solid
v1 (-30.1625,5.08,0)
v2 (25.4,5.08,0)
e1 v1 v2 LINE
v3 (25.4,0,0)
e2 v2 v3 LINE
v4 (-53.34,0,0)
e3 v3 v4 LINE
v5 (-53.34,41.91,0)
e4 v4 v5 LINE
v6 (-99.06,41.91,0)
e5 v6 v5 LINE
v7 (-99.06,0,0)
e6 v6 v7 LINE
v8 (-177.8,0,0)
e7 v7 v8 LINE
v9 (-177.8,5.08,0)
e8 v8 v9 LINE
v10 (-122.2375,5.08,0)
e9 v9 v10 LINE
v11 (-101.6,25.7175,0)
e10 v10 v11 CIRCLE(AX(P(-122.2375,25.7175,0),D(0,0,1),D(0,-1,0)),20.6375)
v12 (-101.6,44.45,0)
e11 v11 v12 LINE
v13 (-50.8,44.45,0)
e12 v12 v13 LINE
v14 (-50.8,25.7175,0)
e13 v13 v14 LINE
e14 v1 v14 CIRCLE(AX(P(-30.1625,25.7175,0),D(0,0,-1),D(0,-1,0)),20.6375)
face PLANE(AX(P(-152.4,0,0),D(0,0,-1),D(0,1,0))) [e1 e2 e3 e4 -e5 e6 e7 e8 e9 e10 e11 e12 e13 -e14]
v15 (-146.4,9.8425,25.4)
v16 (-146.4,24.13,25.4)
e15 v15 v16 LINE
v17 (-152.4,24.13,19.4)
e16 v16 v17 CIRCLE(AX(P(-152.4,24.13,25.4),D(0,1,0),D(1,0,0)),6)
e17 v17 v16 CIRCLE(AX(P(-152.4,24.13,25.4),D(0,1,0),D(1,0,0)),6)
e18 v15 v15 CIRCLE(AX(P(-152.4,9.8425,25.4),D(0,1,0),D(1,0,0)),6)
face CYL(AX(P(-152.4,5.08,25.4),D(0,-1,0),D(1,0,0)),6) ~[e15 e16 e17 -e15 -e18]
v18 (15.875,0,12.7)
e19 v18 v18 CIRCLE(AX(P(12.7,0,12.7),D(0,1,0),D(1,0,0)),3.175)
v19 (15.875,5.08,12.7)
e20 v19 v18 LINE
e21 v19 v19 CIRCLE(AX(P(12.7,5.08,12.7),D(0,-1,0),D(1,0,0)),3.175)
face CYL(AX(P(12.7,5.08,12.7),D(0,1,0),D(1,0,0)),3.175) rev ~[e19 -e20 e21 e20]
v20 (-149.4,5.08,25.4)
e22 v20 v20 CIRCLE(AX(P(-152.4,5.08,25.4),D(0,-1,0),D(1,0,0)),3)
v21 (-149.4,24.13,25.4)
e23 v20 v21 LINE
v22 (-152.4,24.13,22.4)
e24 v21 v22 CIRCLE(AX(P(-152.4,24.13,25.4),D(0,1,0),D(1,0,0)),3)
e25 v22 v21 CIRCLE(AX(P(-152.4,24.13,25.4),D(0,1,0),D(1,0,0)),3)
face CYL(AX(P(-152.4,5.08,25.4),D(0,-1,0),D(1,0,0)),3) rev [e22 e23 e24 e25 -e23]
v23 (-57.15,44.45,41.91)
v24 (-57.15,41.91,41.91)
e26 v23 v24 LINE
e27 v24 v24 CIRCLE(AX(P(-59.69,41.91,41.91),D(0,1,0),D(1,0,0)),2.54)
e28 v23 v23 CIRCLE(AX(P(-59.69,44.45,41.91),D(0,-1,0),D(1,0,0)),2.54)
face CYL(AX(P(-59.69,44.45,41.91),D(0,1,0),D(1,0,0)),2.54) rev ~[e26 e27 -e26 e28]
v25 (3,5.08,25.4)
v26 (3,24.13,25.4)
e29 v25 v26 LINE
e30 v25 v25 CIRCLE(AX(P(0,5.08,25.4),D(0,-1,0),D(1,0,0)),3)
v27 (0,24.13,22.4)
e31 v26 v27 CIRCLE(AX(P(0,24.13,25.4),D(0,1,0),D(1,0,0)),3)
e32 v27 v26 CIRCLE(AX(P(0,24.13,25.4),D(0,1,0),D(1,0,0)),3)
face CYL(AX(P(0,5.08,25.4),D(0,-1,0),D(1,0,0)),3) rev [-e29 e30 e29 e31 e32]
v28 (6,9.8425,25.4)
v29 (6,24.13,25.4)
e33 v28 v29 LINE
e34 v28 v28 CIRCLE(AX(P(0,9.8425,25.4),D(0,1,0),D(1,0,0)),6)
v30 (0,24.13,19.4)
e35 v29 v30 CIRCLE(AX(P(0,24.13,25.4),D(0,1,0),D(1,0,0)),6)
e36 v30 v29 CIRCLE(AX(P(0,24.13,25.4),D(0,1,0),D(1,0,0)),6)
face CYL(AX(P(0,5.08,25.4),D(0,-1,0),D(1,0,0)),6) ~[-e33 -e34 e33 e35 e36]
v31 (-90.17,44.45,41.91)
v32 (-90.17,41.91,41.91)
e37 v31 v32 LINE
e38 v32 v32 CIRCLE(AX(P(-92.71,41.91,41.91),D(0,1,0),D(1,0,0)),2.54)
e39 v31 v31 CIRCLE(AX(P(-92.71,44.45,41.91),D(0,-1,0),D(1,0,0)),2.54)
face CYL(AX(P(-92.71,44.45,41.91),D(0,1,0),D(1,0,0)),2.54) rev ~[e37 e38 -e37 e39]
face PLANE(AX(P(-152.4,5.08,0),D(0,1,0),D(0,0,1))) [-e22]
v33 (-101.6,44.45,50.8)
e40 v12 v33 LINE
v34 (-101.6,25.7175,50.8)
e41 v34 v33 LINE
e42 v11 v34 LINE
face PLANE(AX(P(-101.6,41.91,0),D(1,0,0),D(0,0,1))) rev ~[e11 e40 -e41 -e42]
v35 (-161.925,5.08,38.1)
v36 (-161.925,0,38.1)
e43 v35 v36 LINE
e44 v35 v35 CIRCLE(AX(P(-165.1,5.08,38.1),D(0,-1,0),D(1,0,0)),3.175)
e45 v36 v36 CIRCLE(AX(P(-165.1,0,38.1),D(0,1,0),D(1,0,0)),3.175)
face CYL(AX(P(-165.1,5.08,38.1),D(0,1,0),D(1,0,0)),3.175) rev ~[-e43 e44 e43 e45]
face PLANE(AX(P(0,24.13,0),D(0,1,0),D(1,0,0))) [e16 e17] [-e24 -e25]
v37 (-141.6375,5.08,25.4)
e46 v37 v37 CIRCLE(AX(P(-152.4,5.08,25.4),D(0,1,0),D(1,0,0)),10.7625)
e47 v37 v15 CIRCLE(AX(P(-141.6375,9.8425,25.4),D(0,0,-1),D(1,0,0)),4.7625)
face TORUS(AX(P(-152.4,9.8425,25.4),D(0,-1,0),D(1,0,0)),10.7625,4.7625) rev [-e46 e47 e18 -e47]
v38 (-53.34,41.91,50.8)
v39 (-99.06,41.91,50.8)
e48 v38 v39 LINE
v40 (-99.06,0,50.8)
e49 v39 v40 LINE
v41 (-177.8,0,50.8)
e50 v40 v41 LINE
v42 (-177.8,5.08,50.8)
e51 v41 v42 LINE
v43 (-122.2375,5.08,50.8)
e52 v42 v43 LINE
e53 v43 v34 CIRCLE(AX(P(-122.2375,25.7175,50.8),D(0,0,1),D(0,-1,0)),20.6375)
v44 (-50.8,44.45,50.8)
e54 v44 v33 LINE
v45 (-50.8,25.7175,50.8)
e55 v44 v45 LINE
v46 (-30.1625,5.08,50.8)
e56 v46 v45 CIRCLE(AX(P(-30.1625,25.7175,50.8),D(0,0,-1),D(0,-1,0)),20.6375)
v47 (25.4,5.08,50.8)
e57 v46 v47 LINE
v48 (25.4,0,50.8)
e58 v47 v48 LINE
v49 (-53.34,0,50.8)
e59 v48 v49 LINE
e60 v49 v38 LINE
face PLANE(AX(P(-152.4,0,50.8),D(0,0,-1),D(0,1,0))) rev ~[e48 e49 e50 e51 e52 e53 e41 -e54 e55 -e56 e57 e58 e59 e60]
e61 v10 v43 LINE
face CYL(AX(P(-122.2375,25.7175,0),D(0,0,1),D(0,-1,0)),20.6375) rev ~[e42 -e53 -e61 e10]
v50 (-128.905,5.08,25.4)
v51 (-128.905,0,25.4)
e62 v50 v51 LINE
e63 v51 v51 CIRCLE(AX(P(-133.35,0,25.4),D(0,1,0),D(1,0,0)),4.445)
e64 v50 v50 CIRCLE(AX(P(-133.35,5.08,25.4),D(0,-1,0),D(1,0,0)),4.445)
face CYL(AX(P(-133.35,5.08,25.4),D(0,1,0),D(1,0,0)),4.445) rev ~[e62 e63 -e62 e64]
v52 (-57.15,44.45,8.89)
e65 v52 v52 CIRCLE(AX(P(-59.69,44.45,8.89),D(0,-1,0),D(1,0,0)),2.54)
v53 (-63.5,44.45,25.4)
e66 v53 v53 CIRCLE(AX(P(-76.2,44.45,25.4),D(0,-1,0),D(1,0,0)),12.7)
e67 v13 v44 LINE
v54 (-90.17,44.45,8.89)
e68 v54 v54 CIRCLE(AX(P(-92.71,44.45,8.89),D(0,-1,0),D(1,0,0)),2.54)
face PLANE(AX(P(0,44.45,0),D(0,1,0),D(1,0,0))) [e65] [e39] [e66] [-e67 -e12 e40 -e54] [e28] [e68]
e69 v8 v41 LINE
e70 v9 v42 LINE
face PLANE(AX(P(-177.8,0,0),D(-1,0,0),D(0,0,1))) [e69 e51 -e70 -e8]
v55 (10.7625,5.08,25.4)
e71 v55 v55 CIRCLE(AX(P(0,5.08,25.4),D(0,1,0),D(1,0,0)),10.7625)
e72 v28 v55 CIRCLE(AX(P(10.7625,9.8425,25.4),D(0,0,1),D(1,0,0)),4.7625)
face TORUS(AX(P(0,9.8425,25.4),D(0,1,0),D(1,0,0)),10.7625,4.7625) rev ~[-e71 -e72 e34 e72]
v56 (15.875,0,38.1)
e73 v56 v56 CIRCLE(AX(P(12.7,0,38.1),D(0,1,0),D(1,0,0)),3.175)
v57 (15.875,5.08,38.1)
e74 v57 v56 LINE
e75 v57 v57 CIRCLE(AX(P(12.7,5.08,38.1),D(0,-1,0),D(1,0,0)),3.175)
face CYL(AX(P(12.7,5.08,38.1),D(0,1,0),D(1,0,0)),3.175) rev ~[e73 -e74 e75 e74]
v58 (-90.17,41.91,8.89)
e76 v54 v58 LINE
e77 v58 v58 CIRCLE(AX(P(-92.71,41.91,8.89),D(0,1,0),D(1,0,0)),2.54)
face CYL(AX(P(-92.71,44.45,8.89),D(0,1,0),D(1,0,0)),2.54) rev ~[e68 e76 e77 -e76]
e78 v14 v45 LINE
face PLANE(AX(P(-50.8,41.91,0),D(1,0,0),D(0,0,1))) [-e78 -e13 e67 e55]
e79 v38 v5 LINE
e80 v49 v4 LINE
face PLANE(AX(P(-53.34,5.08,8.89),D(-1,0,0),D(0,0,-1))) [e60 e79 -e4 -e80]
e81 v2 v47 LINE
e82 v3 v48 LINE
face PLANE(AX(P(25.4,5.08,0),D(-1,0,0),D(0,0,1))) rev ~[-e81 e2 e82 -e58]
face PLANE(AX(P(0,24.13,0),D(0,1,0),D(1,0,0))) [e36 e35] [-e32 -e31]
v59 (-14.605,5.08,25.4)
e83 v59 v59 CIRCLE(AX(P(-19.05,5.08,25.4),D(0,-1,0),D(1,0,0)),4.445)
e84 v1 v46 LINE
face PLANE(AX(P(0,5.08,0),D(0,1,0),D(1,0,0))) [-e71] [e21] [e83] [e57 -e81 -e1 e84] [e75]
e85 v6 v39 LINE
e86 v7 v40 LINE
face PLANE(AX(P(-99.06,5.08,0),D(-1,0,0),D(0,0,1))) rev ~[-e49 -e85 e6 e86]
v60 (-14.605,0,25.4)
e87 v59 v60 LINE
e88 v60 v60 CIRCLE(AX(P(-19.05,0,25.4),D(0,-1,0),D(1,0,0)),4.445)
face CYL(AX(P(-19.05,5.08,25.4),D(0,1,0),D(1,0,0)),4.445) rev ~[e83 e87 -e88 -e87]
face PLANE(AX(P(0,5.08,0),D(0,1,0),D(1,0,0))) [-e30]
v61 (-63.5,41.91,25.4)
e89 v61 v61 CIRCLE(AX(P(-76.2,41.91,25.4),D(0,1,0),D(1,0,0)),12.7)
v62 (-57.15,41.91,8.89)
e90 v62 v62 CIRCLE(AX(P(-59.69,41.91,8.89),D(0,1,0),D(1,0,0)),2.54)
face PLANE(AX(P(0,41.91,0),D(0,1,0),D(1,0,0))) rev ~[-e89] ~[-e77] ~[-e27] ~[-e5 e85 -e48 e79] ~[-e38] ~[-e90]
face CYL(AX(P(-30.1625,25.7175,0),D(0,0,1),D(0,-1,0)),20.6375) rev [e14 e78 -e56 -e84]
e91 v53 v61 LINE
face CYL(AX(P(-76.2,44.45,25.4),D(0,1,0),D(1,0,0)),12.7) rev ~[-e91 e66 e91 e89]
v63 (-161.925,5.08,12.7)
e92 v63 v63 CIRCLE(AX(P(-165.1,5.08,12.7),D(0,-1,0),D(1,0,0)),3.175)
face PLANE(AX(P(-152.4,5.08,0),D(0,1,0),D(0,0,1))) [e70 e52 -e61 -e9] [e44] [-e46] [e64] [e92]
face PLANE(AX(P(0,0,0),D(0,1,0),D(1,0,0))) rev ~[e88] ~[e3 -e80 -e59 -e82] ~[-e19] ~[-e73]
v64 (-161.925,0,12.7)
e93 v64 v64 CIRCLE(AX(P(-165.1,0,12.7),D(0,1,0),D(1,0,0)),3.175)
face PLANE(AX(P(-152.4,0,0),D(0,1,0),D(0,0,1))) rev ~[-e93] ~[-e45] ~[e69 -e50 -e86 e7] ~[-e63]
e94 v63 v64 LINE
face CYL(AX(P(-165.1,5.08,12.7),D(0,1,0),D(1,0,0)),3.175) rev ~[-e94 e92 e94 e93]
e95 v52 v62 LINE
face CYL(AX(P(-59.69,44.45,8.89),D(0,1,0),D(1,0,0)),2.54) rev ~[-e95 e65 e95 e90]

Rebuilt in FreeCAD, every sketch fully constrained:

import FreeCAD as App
import Part
import Sketcher

V = App.Vector
Q = App.Units.Quantity


def edges_at(feature, points):
    """Names of the edges that pass closest to the given points."""
    edges = feature.Shape.Edges
    near = lambda p: min(range(len(edges)), key=lambda i: edges[i].distToShape(Part.Vertex(*p))[0])
    return sorted({f"Edge{near(p) + 1}" for p in points})


def add_polygon(sketch, points):
    """Adds a closed chain of lines whose ends are joined by coincident constraints."""
    first, n = sketch.GeometryCount, len(points)
    for a, b in zip(points, points[1:] + points[:1]):
        sketch.addGeometry(Part.LineSegment(App.Vector(*a, 0), App.Vector(*b, 0)), False)
    for i in range(n):
        sketch.addConstraint(Sketcher.Constraint("Coincident", first + i, 2, first + (i + 1) % n, 1))

doc = App.newDocument("Part")
params = doc.addObject("Spreadsheet::Sheet", "Params")
for row, (alias, value) in enumerate([
    ("sketch1_width", "6 in"),
    ("sketch1_height", "2 in"),
    ("pad1_length", "0.2 in"),
    ("sketch2_width", "0.1 in"),
    ("sketch2_height", "2 in"),
    ("pad2_length", "1.45 in"),
    ("sketch3_width", "0.1 in"),
    ("sketch3_height", "2 in"),
    ("pad3_length", "1.45 in"),
    ("sketch4_width", "2 in"),
    ("pad4_length", "0.1 in"),
    ("sketch5_height", "2 in"),
    ("sketch5_width", "1.8 in"),
    ("pocket1_length", "0.5375 in"),
    ("sketch6_diameter", "1 in"),
    ("sketch6_diameter2", "0.2 in"),
    ("pocket2_length", "0.5375 in"),
    ("sketch7_width", "1 in"),
    ("sketch7_height", "2 in"),
    ("pad5_length", "0.2 in"),
    ("sketch8_height", "2 in"),
    ("sketch8_width", "0.2 in"),
    ("pad6_length", "1 in"),
    ("pad7_length", "0.75 in"),
    ("pad8_length", "0.75 in"),
    ("fillet_radius", "0.1875 in"),
    ("fillet2_radius", "0.8125 in"),
    ("sketch11_diameter", "0.25 in"),
    ("pocket3_length", "0.75 in"),
    ("sketch12_diameter", "0.25 in"),
    ("pocket4_length", "0.75 in"),
    ("sketch13_diameter", "0.35 in"),
    ("pocket5_length", "0.75 in"),
    ("sketch14_diameter", "0.35 in"),
    ("pocket6_length", "0.75 in"),
], start=1):
    params.set(f"A{row}", alias)
    params.set(f"B{row}", "=" + value)
    params.setAlias(f"B{row}", alias)

body = doc.addObject("PartDesign::Body", "Body")

# Sketch on XZ plane
sketch1 = doc.addObject("Sketcher::SketchObject", "Sketch")
body.addObject(sketch1)
sketch1.AttachmentSupport = (doc.XZ_Plane, [""])
sketch1.MapMode = "FlatFace"
add_polygon(sketch1, [(0, 51), (0, 0), (-152, 0), (-152, 51)])  # lines 0-3
sketch1.addConstraint(Sketcher.Constraint("Vertical", 0))
sketch1.addConstraint(Sketcher.Constraint("Horizontal", 1))
sketch1.addConstraint(Sketcher.Constraint("Vertical", 2))
sketch1.addConstraint(Sketcher.Constraint("Horizontal", 3))
sketch1.addConstraint(Sketcher.Constraint("Coincident", 0, 2, -1, 1))
sketch1.addConstraint(Sketcher.Constraint("DistanceX", 1, 2, 1, 1, Q("6 in")))
sketch1.addConstraint(Sketcher.Constraint("DistanceY", 0, 2, 0, 1, Q("2 in")))
sketch1.setExpression("Constraints[9]", "Params.sketch1_width")
sketch1.setExpression("Constraints[10]", "Params.sketch1_height")
pad1 = doc.addObject("PartDesign::Pad", "Pad")
body.addObject(pad1)
pad1.Profile = sketch1
pad1.setExpression("Length", "Params.pad1_length")
pad1.Reversed = True

# Sketch on XZ plane
sketch2 = doc.addObject("Sketcher::SketchObject", "Sketch001")
body.addObject(sketch2)
sketch2.AttachmentSupport = (doc.XZ_Plane, [""])
sketch2.MapMode = "FlatFace"
sketch2.AttachmentOffset = App.Placement(V(0, 0, -0.2 * 25.4), App.Rotation())
add_polygon(sketch2, [(-50.8, 50.8), (-50.8, 0), (-53.3, 0), (-53.3, 50.8)])  # lines 0-3
sketch2.addConstraint(Sketcher.Constraint("Vertical", 0))
sketch2.addConstraint(Sketcher.Constraint("Horizontal", 1))
sketch2.addConstraint(Sketcher.Constraint("Vertical", 2))
sketch2.addConstraint(Sketcher.Constraint("Horizontal", 3))
sketch2.addConstraint(Sketcher.Constraint("PointOnObject", 0, 2, -1))
sketch2.addConstraint(Sketcher.Constraint("DistanceX", 1, 2, 1, 1, Q("0.1 in")))
sketch2.addConstraint(Sketcher.Constraint("DistanceY", 0, 2, 0, 1, Q("2 in")))
sketch2.addConstraint(Sketcher.Constraint("DistanceX", 0, 2, -1, 1, Q("2 in")))
sketch2.setExpression("Constraints[9]", "Params.sketch2_width")
sketch2.setExpression("Constraints[10]", "Params.sketch2_height")
pad2 = doc.addObject("PartDesign::Pad", "Pad001")
body.addObject(pad2)
pad2.Profile = sketch2
pad2.setExpression("Length", "Params.pad2_length")
pad2.Reversed = True

# Sketch on XZ plane
sketch3 = doc.addObject("Sketcher::SketchObject", "Sketch002")
body.addObject(sketch3)
sketch3.AttachmentSupport = (doc.XZ_Plane, [""])
sketch3.MapMode = "FlatFace"
sketch3.AttachmentOffset = App.Placement(V(0, 0, -0.2 * 25.4), App.Rotation())
add_polygon(sketch3, [(-99.1, 50.8), (-99.1, 0), (-101.6, 0), (-101.6, 50.8)])  # lines 0-3
sketch3.addConstraint(Sketcher.Constraint("Vertical", 0))
sketch3.addConstraint(Sketcher.Constraint("Horizontal", 1))
sketch3.addConstraint(Sketcher.Constraint("Vertical", 2))
sketch3.addConstraint(Sketcher.Constraint("Horizontal", 3))
sketch3.addConstraint(Sketcher.Constraint("PointOnObject", 0, 2, -1))
sketch3.addConstraint(Sketcher.Constraint("DistanceX", 1, 2, 1, 1, Q("0.1 in")))
sketch3.addConstraint(Sketcher.Constraint("DistanceY", 0, 2, 0, 1, Q("2 in")))
sketch3.addConstraint(Sketcher.Constraint("DistanceX", 1, 2, -1, 1, Q("4 in")))
sketch3.setExpression("Constraints[9]", "Params.sketch3_width")
sketch3.setExpression("Constraints[10]", "Params.sketch3_height")
pad3 = doc.addObject("PartDesign::Pad", "Pad002")
body.addObject(pad3)
pad3.Profile = sketch3
pad3.setExpression("Length", "Params.pad3_length")
pad3.Reversed = True

# Sketch on XZ plane
sketch4 = doc.addObject("Sketcher::SketchObject", "Sketch003")
body.addObject(sketch4)
sketch4.AttachmentSupport = (doc.XZ_Plane, [""])
sketch4.MapMode = "FlatFace"
sketch4.AttachmentOffset = App.Placement(V(0, 0, -1.65 * 25.4), App.Rotation())
add_polygon(sketch4, [(-51, 0), (-102, 0), (-102, 51), (-51, 51)])  # lines 0-3
sketch4.addConstraint(Sketcher.Constraint("Horizontal", 0))
sketch4.addConstraint(Sketcher.Constraint("Vertical", 1))
sketch4.addConstraint(Sketcher.Constraint("Horizontal", 2))
sketch4.addConstraint(Sketcher.Constraint("Vertical", 3))
sketch4.addConstraint(Sketcher.Constraint("PointOnObject", 0, 2, -1))
sketch4.addConstraint(Sketcher.Constraint("Equal", 2, 1))
sketch4.addConstraint(Sketcher.Constraint("DistanceX", 0, 2, 0, 1, Q("2 in")))
sketch4.addConstraint(Sketcher.Constraint("DistanceX", 2, 2, -1, 1, Q("2 in")))
sketch4.setExpression("Constraints[10]", "Params.sketch4_width")
pad4 = doc.addObject("PartDesign::Pad", "Pad003")
body.addObject(pad4)
pad4.Profile = sketch4
pad4.setExpression("Length", "Params.pad4_length")
pad4.Reversed = True

# Sketch on XZ plane
sketch5 = doc.addObject("Sketcher::SketchObject", "Sketch004")
body.addObject(sketch5)
sketch5.AttachmentSupport = (doc.XZ_Plane, [""])
sketch5.MapMode = "FlatFace"
sketch5.AttachmentOffset = App.Placement(V(0, 0, -0.2 * 25.4), App.Rotation())
add_polygon(sketch5, [(-53, 0), (-99, 0), (-99, 51), (-53, 51)])  # lines 0-3
sketch5.addConstraint(Sketcher.Constraint("Horizontal", 0))
sketch5.addConstraint(Sketcher.Constraint("Vertical", 1))
sketch5.addConstraint(Sketcher.Constraint("Horizontal", 2))
sketch5.addConstraint(Sketcher.Constraint("Vertical", 3))
sketch5.addConstraint(Sketcher.Constraint("PointOnObject", 0, 2, -1))
sketch5.addConstraint(Sketcher.Constraint("DistanceY", 1, 1, 1, 2, Q("2 in")))
sketch5.addConstraint(Sketcher.Constraint("DistanceX", 0, 2, 0, 1, Q("1.8 in")))
sketch5.addConstraint(Sketcher.Constraint("DistanceX", 0, 2, -1, 1, Q("3.9 in")))
sketch5.setExpression("Constraints[9]", "Params.sketch5_height")
sketch5.setExpression("Constraints[10]", "Params.sketch5_width")
pocket1 = doc.addObject("PartDesign::Pocket", "Pocket")
body.addObject(pocket1)
pocket1.Profile = sketch5
pocket1.setExpression("Length", "Params.pocket1_length")
pocket1.Reversed = True

# Sketch on XZ plane
sketch6 = doc.addObject("Sketcher::SketchObject", "Sketch005")
body.addObject(sketch6)
sketch6.AttachmentSupport = (doc.XZ_Plane, [""])
sketch6.MapMode = "FlatFace"
sketch6.AttachmentOffset = App.Placement(V(0, 0, -1.75 * 25.4), App.Rotation())
sketch6.addGeometry(Part.Circle(V(-76.2, 25.4, 0), V(0, 0, 1), 12.7), False)
sketch6.addGeometry(Part.Circle(V(-59.7, 8.9, 0), V(0, 0, 1), 2.5), False)
sketch6.addGeometry(Part.Circle(V(-59.7, 41.9, 0), V(0, 0, 1), 2.5), False)
sketch6.addGeometry(Part.Circle(V(-92.7, 41.9, 0), V(0, 0, 1), 2.5), False)
sketch6.addGeometry(Part.Circle(V(-92.7, 8.9, 0), V(0, 0, 1), 2.5), False)
sketch6.addConstraint(Sketcher.Constraint("Equal", 1, 2))
sketch6.addConstraint(Sketcher.Constraint("Equal", 2, 3))
sketch6.addConstraint(Sketcher.Constraint("Equal", 3, 4))
sketch6.addConstraint(Sketcher.Constraint("Horizontal", 2, 3, 3, 3))
sketch6.addConstraint(Sketcher.Constraint("Horizontal", 1, 3, 4, 3))
sketch6.addConstraint(Sketcher.Constraint("Vertical", 1, 3, 2, 3))
sketch6.addConstraint(Sketcher.Constraint("Vertical", 3, 3, 4, 3))
sketch6.addConstraint(Sketcher.Constraint("Diameter", 0, Q("1 in")))
sketch6.addConstraint(Sketcher.Constraint("Diameter", 1, Q("0.2 in")))
sketch6.addConstraint(Sketcher.Constraint("DistanceY", -1, 1, 0, 3, Q("1 in")))
sketch6.addConstraint(Sketcher.Constraint("DistanceX", 0, 3, 1, 3, Q("0.65 in")))
sketch6.addConstraint(Sketcher.Constraint("DistanceY", 1, 3, 0, 3, Q("0.65 in")))
sketch6.addConstraint(Sketcher.Constraint("DistanceY", 0, 3, 2, 3, Q("0.65 in")))
sketch6.addConstraint(Sketcher.Constraint("DistanceX", 3, 3, 0, 3, Q("0.65 in")))
sketch6.addConstraint(Sketcher.Constraint("DistanceX", 0, 3, -1, 1, Q("3 in")))
sketch6.setExpression("Constraints[7]", "Params.sketch6_diameter")
sketch6.setExpression("Constraints[8]", "Params.sketch6_diameter2")
pocket2 = doc.addObject("PartDesign::Pocket", "Pocket001")
body.addObject(pocket2)
pocket2.Profile = sketch6
pocket2.setExpression("Length", "Params.pocket2_length")
pocket2.Reversed = True

# Sketch on XZ plane
sketch7 = doc.addObject("Sketcher::SketchObject", "Sketch006")
body.addObject(sketch7)
sketch7.AttachmentSupport = (doc.XZ_Plane, [""])
sketch7.MapMode = "FlatFace"
sketch7.AttachmentOffset = App.Placement(V(0, 0, -0.2 * 25.4), App.Rotation())
add_polygon(sketch7, [(0, 0), (0, 51), (25, 51), (25, 0)])  # lines 0-3
sketch7.addConstraint(Sketcher.Constraint("Vertical", 0))
sketch7.addConstraint(Sketcher.Constraint("Horizontal", 1))
sketch7.addConstraint(Sketcher.Constraint("Vertical", 2))
sketch7.addConstraint(Sketcher.Constraint("Horizontal", 3))
sketch7.addConstraint(Sketcher.Constraint("Coincident", 3, 2, -1, 1))
sketch7.addConstraint(Sketcher.Constraint("DistanceX", 1, 1, 1, 2, Q("1 in")))
sketch7.addConstraint(Sketcher.Constraint("DistanceY", 0, 1, 0, 2, Q("2 in")))
sketch7.setExpression("Constraints[9]", "Params.sketch7_width")
sketch7.setExpression("Constraints[10]", "Params.sketch7_height")
pad5 = doc.addObject("PartDesign::Pad", "Pad004")
body.addObject(pad5)
pad5.Profile = sketch7
pad5.setExpression("Length", "Params.pad5_length")

# Sketch on YZ plane
sketch8 = doc.addObject("Sketcher::SketchObject", "Sketch007")
body.addObject(sketch8)
sketch8.AttachmentSupport = (doc.YZ_Plane, [""])
sketch8.MapMode = "FlatFace"
sketch8.AttachmentOffset = App.Placement(V(0, 0, -6 * 25.4), App.Rotation())
add_polygon(sketch8, [(5, 0), (0, 0), (0, 51), (5, 51)])  # lines 0-3
sketch8.addConstraint(Sketcher.Constraint("Horizontal", 0))
sketch8.addConstraint(Sketcher.Constraint("Vertical", 1))
sketch8.addConstraint(Sketcher.Constraint("Horizontal", 2))
sketch8.addConstraint(Sketcher.Constraint("Vertical", 3))
sketch8.addConstraint(Sketcher.Constraint("Coincident", 0, 2, -1, 1))
sketch8.addConstraint(Sketcher.Constraint("DistanceY", 1, 1, 1, 2, Q("2 in")))
sketch8.addConstraint(Sketcher.Constraint("DistanceX", 0, 2, 0, 1, Q("0.2 in")))
sketch8.setExpression("Constraints[9]", "Params.sketch8_height")
sketch8.setExpression("Constraints[10]", "Params.sketch8_width")
pad6 = doc.addObject("PartDesign::Pad", "Pad005")
body.addObject(pad6)
pad6.Profile = sketch8
pad6.setExpression("Length", "Params.pad6_length")
pad6.Reversed = True

# Sketch on XZ plane
sketch9 = doc.addObject("Sketcher::SketchObject", "Sketch008")
body.addObject(sketch9)
sketch9.AttachmentSupport = (doc.XZ_Plane, [""])
sketch9.MapMode = "FlatFace"
sketch9.AttachmentOffset = App.Placement(V(0, 0, -0.2 * 25.4), App.Rotation())
sketch9.addGeometry(Part.Circle(V(-152.4, 25.4, 0), V(0, 0, 1), 6), False)
sketch9.addGeometry(Part.Circle(V(-152.4, 25.4, 0), V(0, 0, 1), 3), False)
sketch9.addConstraint(Sketcher.Constraint("Coincident", 1, 3, 0, 3))
sketch9.addConstraint(Sketcher.Constraint("Diameter", 0, Q("12 mm")))
sketch9.addConstraint(Sketcher.Constraint("Diameter", 1, Q("6 mm")))
sketch9.addConstraint(Sketcher.Constraint("DistanceX", 0, 3, -1, 1, Q("6 in")))
sketch9.addConstraint(Sketcher.Constraint("DistanceY", -1, 1, 0, 3, Q("1 in")))
pad7 = doc.addObject("PartDesign::Pad", "Pad006")
body.addObject(pad7)
pad7.Profile = sketch9
pad7.setExpression("Length", "Params.pad7_length")
pad7.Reversed = True

# Sketch on XZ plane
sketch10 = doc.addObject("Sketcher::SketchObject", "Sketch009")
body.addObject(sketch10)
sketch10.AttachmentSupport = (doc.XZ_Plane, [""])
sketch10.MapMode = "FlatFace"
sketch10.AttachmentOffset = App.Placement(V(0, 0, -0.2 * 25.4), App.Rotation())
sketch10.addGeometry(Part.Circle(V(0, 25.4, 0), V(0, 0, 1), 6), False)
sketch10.addGeometry(Part.Circle(V(0, 25.4, 0), V(0, 0, 1), 3), False)
sketch10.addConstraint(Sketcher.Constraint("Coincident", 1, 3, 0, 3))
sketch10.addConstraint(Sketcher.Constraint("PointOnObject", 0, 3, -2))
sketch10.addConstraint(Sketcher.Constraint("Diameter", 0, Q("12 mm")))
sketch10.addConstraint(Sketcher.Constraint("Diameter", 1, Q("6 mm")))
sketch10.addConstraint(Sketcher.Constraint("DistanceY", -1, 1, 0, 3, Q("1 in")))
pad8 = doc.addObject("PartDesign::Pad", "Pad007")
body.addObject(pad8)
pad8.Profile = sketch10
pad8.setExpression("Length", "Params.pad8_length")
pad8.Reversed = True
doc.recompute()

fillet = doc.addObject("PartDesign::Fillet", "Fillet")
body.addObject(fillet)
fillet.Base = (pad8, edges_at(pad8, [(-158.4, 5.08, 25.4), (-6, 5.08, 25.4)]))
fillet.setExpression("Radius", "Params.fillet_radius")
doc.recompute()

fillet2 = doc.addObject("PartDesign::Fillet", "Fillet001")
body.addObject(fillet2)
fillet2.Base = (fillet, edges_at(fillet, [(-50.8, 5.08, 25.4), (-101.6, 5.08, 25.4)]))
fillet2.setExpression("Radius", "Params.fillet2_radius")

# Sketch on XZ plane
sketch11 = doc.addObject("Sketcher::SketchObject", "Sketch010")
body.addObject(sketch11)
sketch11.AttachmentSupport = (doc.XZ_Plane, [""])
sketch11.MapMode = "FlatFace"
sketch11.AttachmentOffset = App.Placement(V(0, 0, -0.2 * 25.4), App.Rotation())
sketch11.addGeometry(Part.Circle(V(-165.1, 12.7, 0), V(0, 0, 1), 3.2), False)
sketch11.addGeometry(Part.Circle(V(-165.1, 38.1, 0), V(0, 0, 1), 3.2), False)
sketch11.addConstraint(Sketcher.Constraint("Equal", 0, 1))
sketch11.addConstraint(Sketcher.Constraint("Vertical", 0, 3, 1, 3))
sketch11.addConstraint(Sketcher.Constraint("Diameter", 0, Q("0.25 in")))
sketch11.addConstraint(Sketcher.Constraint("DistanceY", -1, 1, 0, 3, Q("0.5 in")))
sketch11.addConstraint(Sketcher.Constraint("DistanceY", 0, 3, 1, 3, Q("1 in")))
sketch11.addConstraint(Sketcher.Constraint("DistanceX", 0, 3, -1, 1, Q("6.5 in")))
sketch11.setExpression("Constraints[2]", "Params.sketch11_diameter")
pocket3 = doc.addObject("PartDesign::Pocket", "Pocket002")
body.addObject(pocket3)
pocket3.Profile = sketch11
pocket3.setExpression("Length", "Params.pocket3_length")
pocket3.Reversed = True

# Sketch on XZ plane
sketch12 = doc.addObject("Sketcher::SketchObject", "Sketch011")
body.addObject(sketch12)
sketch12.AttachmentSupport = (doc.XZ_Plane, [""])
sketch12.MapMode = "FlatFace"
sketch12.AttachmentOffset = App.Placement(V(0, 0, -0.2 * 25.4), App.Rotation())
sketch12.addGeometry(Part.Circle(V(12.7, 12.7, 0), V(0, 0, 1), 3.2), False)
sketch12.addGeometry(Part.Circle(V(12.7, 38.1, 0), V(0, 0, 1), 3.2), False)
sketch12.addConstraint(Sketcher.Constraint("Equal", 0, 1))
sketch12.addConstraint(Sketcher.Constraint("Vertical", 0, 3, 1, 3))
sketch12.addConstraint(Sketcher.Constraint("Diameter", 0, Q("0.25 in")))
sketch12.addConstraint(Sketcher.Constraint("DistanceX", -1, 1, 0, 3, Q("0.5 in")))
sketch12.addConstraint(Sketcher.Constraint("DistanceY", -1, 1, 0, 3, Q("0.5 in")))
sketch12.addConstraint(Sketcher.Constraint("DistanceY", 0, 3, 1, 3, Q("1 in")))
sketch12.setExpression("Constraints[2]", "Params.sketch12_diameter")
pocket4 = doc.addObject("PartDesign::Pocket", "Pocket003")
body.addObject(pocket4)
pocket4.Profile = sketch12
pocket4.setExpression("Length", "Params.pocket4_length")
pocket4.Reversed = True

# Sketch on XZ plane
sketch13 = doc.addObject("Sketcher::SketchObject", "Sketch012")
body.addObject(sketch13)
sketch13.AttachmentSupport = (doc.XZ_Plane, [""])
sketch13.MapMode = "FlatFace"
sketch13.AttachmentOffset = App.Placement(V(0, 0, -0.2 * 25.4), App.Rotation())
sketch13.addGeometry(Part.Circle(V(-133.3, 25.4, 0), V(0, 0, 1), 4.4), False)
sketch13.addConstraint(Sketcher.Constraint("Diameter", 0, Q("0.35 in")))
sketch13.addConstraint(Sketcher.Constraint("DistanceY", -1, 1, 0, 3, Q("1 in")))
sketch13.addConstraint(Sketcher.Constraint("DistanceX", 0, 3, -1, 1, Q("5.25 in")))
sketch13.setExpression("Constraints[0]", "Params.sketch13_diameter")
pocket5 = doc.addObject("PartDesign::Pocket", "Pocket004")
body.addObject(pocket5)
pocket5.Profile = sketch13
pocket5.setExpression("Length", "Params.pocket5_length")
pocket5.Reversed = True

# Sketch on XZ plane
sketch14 = doc.addObject("Sketcher::SketchObject", "Sketch013")
body.addObject(sketch14)
sketch14.AttachmentSupport = (doc.XZ_Plane, [""])
sketch14.MapMode = "FlatFace"
sketch14.AttachmentOffset = App.Placement(V(0, 0, -0.2 * 25.4), App.Rotation())
sketch14.addGeometry(Part.Circle(V(-19.1, 25.4, 0), V(0, 0, 1), 4.4), False)
sketch14.addConstraint(Sketcher.Constraint("Diameter", 0, Q("0.35 in")))
sketch14.addConstraint(Sketcher.Constraint("DistanceY", -1, 1, 0, 3, Q("1 in")))
sketch14.addConstraint(Sketcher.Constraint("DistanceX", 0, 3, -1, 1, Q("0.75 in")))
sketch14.setExpression("Constraints[0]", "Params.sketch14_diameter")
pocket6 = doc.addObject("PartDesign::Pocket", "Pocket005")
body.addObject(pocket6)
pocket6.Profile = sketch14
pocket6.setExpression("Length", "Params.pocket6_length")
pocket6.Reversed = True

doc.recompute()
